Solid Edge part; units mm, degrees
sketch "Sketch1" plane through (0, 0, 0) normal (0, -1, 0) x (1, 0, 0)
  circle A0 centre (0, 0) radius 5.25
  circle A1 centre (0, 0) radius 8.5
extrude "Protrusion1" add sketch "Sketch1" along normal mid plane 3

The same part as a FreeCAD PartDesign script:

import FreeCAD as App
import Part
import Sketcher
Q = App.Units.Quantity

doc = App.newDocument("Part")
body = doc.addObject("PartDesign::Body", "Body")

sketch1 = body.newObject("Sketcher::SketchObject", "Sketch")
sketch1.AttachmentSupport = (doc.getObject("XZ_Plane"), [""])
sketch1.MapMode = "FlatFace"
sketch1.addGeometry([
    Part.Circle(App.Vector(0, 0, 0), App.Vector(0, 0, 1), 8.5),
    Part.Circle(App.Vector(0, 0, 0), App.Vector(0, 0, 1), 5.25),
], False)
sketch1.addConstraint([
    Sketcher.Constraint("Coincident", 0, 3, -1, 1),
    Sketcher.Constraint("Coincident", 1, 3, -1, 1),
    Sketcher.Constraint("Diameter", 0, Q("17 mm")),
    Sketcher.Constraint("Diameter", 1, Q("10.5 mm")),
])
pad1 = body.newObject("PartDesign::Pad", "Pad")
pad1.Profile = sketch1
pad1.Length = 3
pad1.Midplane = True

doc.recompute()
